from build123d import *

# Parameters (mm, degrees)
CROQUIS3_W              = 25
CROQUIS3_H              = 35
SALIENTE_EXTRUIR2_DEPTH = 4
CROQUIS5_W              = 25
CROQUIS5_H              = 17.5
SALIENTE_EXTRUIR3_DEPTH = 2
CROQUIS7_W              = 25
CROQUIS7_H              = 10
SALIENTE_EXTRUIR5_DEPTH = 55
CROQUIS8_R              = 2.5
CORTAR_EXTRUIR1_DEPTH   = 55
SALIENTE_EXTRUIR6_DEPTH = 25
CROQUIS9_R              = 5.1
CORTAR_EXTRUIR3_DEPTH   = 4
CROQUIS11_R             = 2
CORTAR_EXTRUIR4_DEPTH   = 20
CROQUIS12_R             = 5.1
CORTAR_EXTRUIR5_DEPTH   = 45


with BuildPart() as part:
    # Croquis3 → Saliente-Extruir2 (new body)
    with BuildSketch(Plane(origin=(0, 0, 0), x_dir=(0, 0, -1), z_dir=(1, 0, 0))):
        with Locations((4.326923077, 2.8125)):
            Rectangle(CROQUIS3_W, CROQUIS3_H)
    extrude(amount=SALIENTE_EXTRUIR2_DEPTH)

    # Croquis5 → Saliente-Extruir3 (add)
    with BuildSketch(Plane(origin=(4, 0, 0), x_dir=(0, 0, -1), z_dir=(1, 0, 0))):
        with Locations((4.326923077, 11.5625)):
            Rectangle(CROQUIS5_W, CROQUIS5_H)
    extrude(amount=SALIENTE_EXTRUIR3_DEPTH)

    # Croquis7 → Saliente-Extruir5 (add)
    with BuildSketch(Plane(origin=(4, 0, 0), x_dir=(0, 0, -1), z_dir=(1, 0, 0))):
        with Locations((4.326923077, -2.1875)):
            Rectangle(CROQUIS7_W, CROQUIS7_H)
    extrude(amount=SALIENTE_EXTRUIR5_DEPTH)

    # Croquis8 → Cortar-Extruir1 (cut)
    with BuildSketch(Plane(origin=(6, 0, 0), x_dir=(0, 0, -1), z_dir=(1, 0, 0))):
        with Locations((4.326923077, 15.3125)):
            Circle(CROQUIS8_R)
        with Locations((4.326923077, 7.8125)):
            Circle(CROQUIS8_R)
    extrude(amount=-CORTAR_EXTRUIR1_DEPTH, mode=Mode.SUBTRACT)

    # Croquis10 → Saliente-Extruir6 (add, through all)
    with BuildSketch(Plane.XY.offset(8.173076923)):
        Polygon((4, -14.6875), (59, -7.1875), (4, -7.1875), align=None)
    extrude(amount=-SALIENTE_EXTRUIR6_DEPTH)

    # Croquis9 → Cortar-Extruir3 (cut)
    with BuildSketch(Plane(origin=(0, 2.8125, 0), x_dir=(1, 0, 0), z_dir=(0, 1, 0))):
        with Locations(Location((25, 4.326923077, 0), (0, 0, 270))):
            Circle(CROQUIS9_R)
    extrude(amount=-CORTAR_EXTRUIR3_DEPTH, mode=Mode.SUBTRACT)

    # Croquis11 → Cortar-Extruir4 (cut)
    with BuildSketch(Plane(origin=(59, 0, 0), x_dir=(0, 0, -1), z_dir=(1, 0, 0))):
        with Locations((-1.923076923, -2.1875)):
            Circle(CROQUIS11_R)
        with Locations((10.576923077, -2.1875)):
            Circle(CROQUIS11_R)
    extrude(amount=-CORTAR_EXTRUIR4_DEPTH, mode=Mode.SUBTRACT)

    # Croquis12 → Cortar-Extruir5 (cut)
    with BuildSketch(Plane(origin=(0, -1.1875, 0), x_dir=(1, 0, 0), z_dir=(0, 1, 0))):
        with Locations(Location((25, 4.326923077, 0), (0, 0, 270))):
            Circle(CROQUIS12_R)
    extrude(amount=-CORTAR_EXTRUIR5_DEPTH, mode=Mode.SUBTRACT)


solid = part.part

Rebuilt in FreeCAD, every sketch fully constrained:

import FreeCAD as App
import Part
import Sketcher
from FreeCAD import Vector
Q = App.Units.Quantity


def add_polygon(sketch, points):
    """Adds a closed chain of lines whose ends are joined by coincident constraints."""
    first, n = sketch.GeometryCount, len(points)
    for a, b in zip(points, points[1:] + points[:1]):
        sketch.addGeometry(Part.LineSegment(App.Vector(*a, 0), App.Vector(*b, 0)), False)
    for i in range(n):
        sketch.addConstraint(Sketcher.Constraint("Coincident", first + i, 2, first + (i + 1) % n, 1))

doc = App.newDocument("Part")
body = doc.addObject("PartDesign::Body", "Body")

# Sketch on YZ plane
sketch1 = body.newObject("Sketcher::SketchObject", "Sketch")
sketch1.AttachmentSupport = (doc.getObject("YZ_Plane"), [""])
sketch1.MapMode = "FlatFace"
add_polygon(sketch1, [(20, 8), (-15, 8), (-15, -17), (20, -17)])  # lines 0-3
sketch1.addConstraint([
    Sketcher.Constraint("Horizontal", 0),
    Sketcher.Constraint("Vertical", 1),
    Sketcher.Constraint("Horizontal", 2),
    Sketcher.Constraint("Vertical", 3),
    Sketcher.Constraint("DistanceX", 0, 2, 0, 1, Q("35 mm")),
    Sketcher.Constraint("DistanceY", 1, 2, 1, 1, Q("25 mm")),
    Sketcher.Constraint("DistanceX", 0, 2, -1, 1, Q("14.6875 mm")),
    Sketcher.Constraint("DistanceY", -1, 1, 0, 2, Q("8.173077 mm")),
])
pad1 = body.newObject("PartDesign::Pad", "Pad")
pad1.Profile = sketch1
pad1.Length = 4

# Sketch on YZ plane
sketch2 = body.newObject("Sketcher::SketchObject", "Sketch001")
sketch2.AttachmentSupport = (doc.getObject("YZ_Plane"), [""])
sketch2.MapMode = "FlatFace"
sketch2.AttachmentOffset = App.Placement(Vector(0, 0, 4), App.Rotation())
add_polygon(sketch2, [(20, 8), (3, 8), (3, -17), (20, -17)])  # lines 0-3
sketch2.addConstraint([
    Sketcher.Constraint("Horizontal", 0),
    Sketcher.Constraint("Vertical", 1),
    Sketcher.Constraint("Horizontal", 2),
    Sketcher.Constraint("Vertical", 3),
    Sketcher.Constraint("DistanceY", 1, 2, 1, 1, Q("25 mm")),
    Sketcher.Constraint("DistanceX", 0, 2, 0, 1, Q("17.5 mm")),
    Sketcher.Constraint("DistanceX", -1, 1, 0, 2, Q("2.8125 mm")),
    Sketcher.Constraint("DistanceY", -1, 1, 0, 2, Q("8.173077 mm")),
])
pad2 = body.newObject("PartDesign::Pad", "Pad001")
pad2.Profile = sketch2
pad2.Length = 2

# Sketch on YZ plane
sketch3 = body.newObject("Sketcher::SketchObject", "Sketch002")
sketch3.AttachmentSupport = (doc.getObject("YZ_Plane"), [""])
sketch3.MapMode = "FlatFace"
sketch3.AttachmentOffset = App.Placement(Vector(0, 0, 4), App.Rotation())
add_polygon(sketch3, [(3, 8), (-7, 8), (-7, -17), (3, -17)])  # lines 0-3
sketch3.addConstraint([
    Sketcher.Constraint("Horizontal", 0),
    Sketcher.Constraint("Vertical", 1),
    Sketcher.Constraint("Horizontal", 2),
    Sketcher.Constraint("Vertical", 3),
    Sketcher.Constraint("DistanceX", 0, 2, 0, 1, Q("10 mm")),
    Sketcher.Constraint("DistanceY", 1, 2, 1, 1, Q("25 mm")),
    Sketcher.Constraint("DistanceX", 0, 2, -1, 1, Q("7.1875 mm")),
    Sketcher.Constraint("DistanceY", -1, 1, 0, 2, Q("8.173077 mm")),
])
pad3 = body.newObject("PartDesign::Pad", "Pad002")
pad3.Profile = sketch3
pad3.Length = 55

# Sketch on YZ plane
sketch4 = body.newObject("Sketcher::SketchObject", "Sketch003")
sketch4.AttachmentSupport = (doc.getObject("YZ_Plane"), [""])
sketch4.MapMode = "FlatFace"
sketch4.AttachmentOffset = App.Placement(Vector(0, 0, 6), App.Rotation())
sketch4.addGeometry([
    Part.Circle(Vector(15.3, -4.3, 0), Vector(0, 0, 1), 2.5),
    Part.Circle(Vector(7.8, -4.3, 0), Vector(0, 0, 1), 2.5),
], False)
sketch4.addConstraint([
    Sketcher.Constraint("Equal", 0, 1),
    Sketcher.Constraint("Horizontal", 0, 3, 1, 3),
    Sketcher.Constraint("Diameter", 0, Q("5 mm")),
    Sketcher.Constraint("DistanceX", 1, 3, 0, 3, Q("7.5 mm")),
    Sketcher.Constraint("DistanceX", -1, 1, 0, 3, Q("15.3125 mm")),
    Sketcher.Constraint("DistanceY", 0, 3, -1, 1, Q("4.326923 mm")),
])
pocket1 = body.newObject("PartDesign::Pocket", "Pocket")
pocket1.Profile = sketch4
pocket1.Length = 55

# Sketch on XY plane
sketch5 = body.newObject("Sketcher::SketchObject", "Sketch004")
sketch5.AttachmentSupport = (doc.getObject("XY_Plane"), [""])
sketch5.MapMode = "FlatFace"
sketch5.AttachmentOffset = App.Placement(Vector(0, 0, 8.173077), App.Rotation())
add_polygon(sketch5, [(4, -15), (59, -7), (4, -7)])  # lines 0-2
sketch5.addConstraint([
    Sketcher.Constraint("Horizontal", 1),
    Sketcher.Constraint("Vertical", 2),
    Sketcher.Constraint("DistanceX", 1, 2, 1, 1, Q("55 mm")),
    Sketcher.Constraint("DistanceY", 2, 2, 2, 1, Q("7.5 mm")),
    Sketcher.Constraint("DistanceX", -1, 1, 0, 2, Q("59 mm")),
    Sketcher.Constraint("DistanceY", 0, 2, -1, 1, Q("7.1875 mm")),
])
pad4 = body.newObject("PartDesign::Pad", "Pad003")
pad4.Profile = sketch5
pad4.Length = 25
pad4.Reversed = True

# Sketch on XZ plane
sketch6 = body.newObject("Sketcher::SketchObject", "Sketch005")
sketch6.AttachmentSupport = (doc.getObject("XZ_Plane"), [""])
sketch6.MapMode = "FlatFace"
sketch6.AttachmentOffset = App.Placement(Vector(0, 0, -2.8125), App.Rotation())
sketch6.addGeometry(Part.Circle(Vector(25, -4, 0), Vector(0, 0, 1), 5), False)
sketch6.addConstraint([
    Sketcher.Constraint("Diameter", 0, Q("10.2 mm")),
    Sketcher.Constraint("DistanceX", -1, 1, 0, 3, Q("25 mm")),
    Sketcher.Constraint("DistanceY", 0, 3, -1, 1, Q("4.326923 mm")),
])
pocket2 = body.newObject("PartDesign::Pocket", "Pocket001")
pocket2.Profile = sketch6
pocket2.Length = 4
pocket2.Reversed = True

# Sketch on YZ plane
sketch7 = body.newObject("Sketcher::SketchObject", "Sketch006")
sketch7.AttachmentSupport = (doc.getObject("YZ_Plane"), [""])
sketch7.MapMode = "FlatFace"
sketch7.AttachmentOffset = App.Placement(Vector(0, 0, 59), App.Rotation())
sketch7.addGeometry([
    Part.Circle(Vector(-2.2, 1.9, 0), Vector(0, 0, 1), 2),
    Part.Circle(Vector(-2.2, -10.6, 0), Vector(0, 0, 1), 2),
], False)
sketch7.addConstraint([
    Sketcher.Constraint("Equal", 0, 1),
    Sketcher.Constraint("Vertical", 0, 3, 1, 3),
    Sketcher.Constraint("Diameter", 0, Q("4 mm")),
    Sketcher.Constraint("DistanceY", 1, 3, 0, 3, Q("12.5 mm")),
    Sketcher.Constraint("DistanceX", 0, 3, -1, 1, Q("2.1875 mm")),
    Sketcher.Constraint("DistanceY", -1, 1, 0, 3, Q("1.923077 mm")),
])
pocket3 = body.newObject("PartDesign::Pocket", "Pocket002")
pocket3.Profile = sketch7
pocket3.Length = 20

# Sketch on XZ plane
sketch8 = body.newObject("Sketcher::SketchObject", "Sketch007")
sketch8.AttachmentSupport = (doc.getObject("XZ_Plane"), [""])
sketch8.MapMode = "FlatFace"
sketch8.AttachmentOffset = App.Placement(Vector(0, 0, 1.1875), App.Rotation())
sketch8.addGeometry(Part.Circle(Vector(25, -4, 0), Vector(0, 0, 1), 5), False)
sketch8.addConstraint([
    Sketcher.Constraint("Diameter", 0, Q("10.2 mm")),
    Sketcher.Constraint("DistanceX", -1, 1, 0, 3, Q("25 mm")),
    Sketcher.Constraint("DistanceY", 0, 3, -1, 1, Q("4.326923 mm")),
])
pocket4 = body.newObject("PartDesign::Pocket", "Pocket003")
pocket4.Profile = sketch8
pocket4.Length = 45
pocket4.Reversed = True

doc.recompute()
